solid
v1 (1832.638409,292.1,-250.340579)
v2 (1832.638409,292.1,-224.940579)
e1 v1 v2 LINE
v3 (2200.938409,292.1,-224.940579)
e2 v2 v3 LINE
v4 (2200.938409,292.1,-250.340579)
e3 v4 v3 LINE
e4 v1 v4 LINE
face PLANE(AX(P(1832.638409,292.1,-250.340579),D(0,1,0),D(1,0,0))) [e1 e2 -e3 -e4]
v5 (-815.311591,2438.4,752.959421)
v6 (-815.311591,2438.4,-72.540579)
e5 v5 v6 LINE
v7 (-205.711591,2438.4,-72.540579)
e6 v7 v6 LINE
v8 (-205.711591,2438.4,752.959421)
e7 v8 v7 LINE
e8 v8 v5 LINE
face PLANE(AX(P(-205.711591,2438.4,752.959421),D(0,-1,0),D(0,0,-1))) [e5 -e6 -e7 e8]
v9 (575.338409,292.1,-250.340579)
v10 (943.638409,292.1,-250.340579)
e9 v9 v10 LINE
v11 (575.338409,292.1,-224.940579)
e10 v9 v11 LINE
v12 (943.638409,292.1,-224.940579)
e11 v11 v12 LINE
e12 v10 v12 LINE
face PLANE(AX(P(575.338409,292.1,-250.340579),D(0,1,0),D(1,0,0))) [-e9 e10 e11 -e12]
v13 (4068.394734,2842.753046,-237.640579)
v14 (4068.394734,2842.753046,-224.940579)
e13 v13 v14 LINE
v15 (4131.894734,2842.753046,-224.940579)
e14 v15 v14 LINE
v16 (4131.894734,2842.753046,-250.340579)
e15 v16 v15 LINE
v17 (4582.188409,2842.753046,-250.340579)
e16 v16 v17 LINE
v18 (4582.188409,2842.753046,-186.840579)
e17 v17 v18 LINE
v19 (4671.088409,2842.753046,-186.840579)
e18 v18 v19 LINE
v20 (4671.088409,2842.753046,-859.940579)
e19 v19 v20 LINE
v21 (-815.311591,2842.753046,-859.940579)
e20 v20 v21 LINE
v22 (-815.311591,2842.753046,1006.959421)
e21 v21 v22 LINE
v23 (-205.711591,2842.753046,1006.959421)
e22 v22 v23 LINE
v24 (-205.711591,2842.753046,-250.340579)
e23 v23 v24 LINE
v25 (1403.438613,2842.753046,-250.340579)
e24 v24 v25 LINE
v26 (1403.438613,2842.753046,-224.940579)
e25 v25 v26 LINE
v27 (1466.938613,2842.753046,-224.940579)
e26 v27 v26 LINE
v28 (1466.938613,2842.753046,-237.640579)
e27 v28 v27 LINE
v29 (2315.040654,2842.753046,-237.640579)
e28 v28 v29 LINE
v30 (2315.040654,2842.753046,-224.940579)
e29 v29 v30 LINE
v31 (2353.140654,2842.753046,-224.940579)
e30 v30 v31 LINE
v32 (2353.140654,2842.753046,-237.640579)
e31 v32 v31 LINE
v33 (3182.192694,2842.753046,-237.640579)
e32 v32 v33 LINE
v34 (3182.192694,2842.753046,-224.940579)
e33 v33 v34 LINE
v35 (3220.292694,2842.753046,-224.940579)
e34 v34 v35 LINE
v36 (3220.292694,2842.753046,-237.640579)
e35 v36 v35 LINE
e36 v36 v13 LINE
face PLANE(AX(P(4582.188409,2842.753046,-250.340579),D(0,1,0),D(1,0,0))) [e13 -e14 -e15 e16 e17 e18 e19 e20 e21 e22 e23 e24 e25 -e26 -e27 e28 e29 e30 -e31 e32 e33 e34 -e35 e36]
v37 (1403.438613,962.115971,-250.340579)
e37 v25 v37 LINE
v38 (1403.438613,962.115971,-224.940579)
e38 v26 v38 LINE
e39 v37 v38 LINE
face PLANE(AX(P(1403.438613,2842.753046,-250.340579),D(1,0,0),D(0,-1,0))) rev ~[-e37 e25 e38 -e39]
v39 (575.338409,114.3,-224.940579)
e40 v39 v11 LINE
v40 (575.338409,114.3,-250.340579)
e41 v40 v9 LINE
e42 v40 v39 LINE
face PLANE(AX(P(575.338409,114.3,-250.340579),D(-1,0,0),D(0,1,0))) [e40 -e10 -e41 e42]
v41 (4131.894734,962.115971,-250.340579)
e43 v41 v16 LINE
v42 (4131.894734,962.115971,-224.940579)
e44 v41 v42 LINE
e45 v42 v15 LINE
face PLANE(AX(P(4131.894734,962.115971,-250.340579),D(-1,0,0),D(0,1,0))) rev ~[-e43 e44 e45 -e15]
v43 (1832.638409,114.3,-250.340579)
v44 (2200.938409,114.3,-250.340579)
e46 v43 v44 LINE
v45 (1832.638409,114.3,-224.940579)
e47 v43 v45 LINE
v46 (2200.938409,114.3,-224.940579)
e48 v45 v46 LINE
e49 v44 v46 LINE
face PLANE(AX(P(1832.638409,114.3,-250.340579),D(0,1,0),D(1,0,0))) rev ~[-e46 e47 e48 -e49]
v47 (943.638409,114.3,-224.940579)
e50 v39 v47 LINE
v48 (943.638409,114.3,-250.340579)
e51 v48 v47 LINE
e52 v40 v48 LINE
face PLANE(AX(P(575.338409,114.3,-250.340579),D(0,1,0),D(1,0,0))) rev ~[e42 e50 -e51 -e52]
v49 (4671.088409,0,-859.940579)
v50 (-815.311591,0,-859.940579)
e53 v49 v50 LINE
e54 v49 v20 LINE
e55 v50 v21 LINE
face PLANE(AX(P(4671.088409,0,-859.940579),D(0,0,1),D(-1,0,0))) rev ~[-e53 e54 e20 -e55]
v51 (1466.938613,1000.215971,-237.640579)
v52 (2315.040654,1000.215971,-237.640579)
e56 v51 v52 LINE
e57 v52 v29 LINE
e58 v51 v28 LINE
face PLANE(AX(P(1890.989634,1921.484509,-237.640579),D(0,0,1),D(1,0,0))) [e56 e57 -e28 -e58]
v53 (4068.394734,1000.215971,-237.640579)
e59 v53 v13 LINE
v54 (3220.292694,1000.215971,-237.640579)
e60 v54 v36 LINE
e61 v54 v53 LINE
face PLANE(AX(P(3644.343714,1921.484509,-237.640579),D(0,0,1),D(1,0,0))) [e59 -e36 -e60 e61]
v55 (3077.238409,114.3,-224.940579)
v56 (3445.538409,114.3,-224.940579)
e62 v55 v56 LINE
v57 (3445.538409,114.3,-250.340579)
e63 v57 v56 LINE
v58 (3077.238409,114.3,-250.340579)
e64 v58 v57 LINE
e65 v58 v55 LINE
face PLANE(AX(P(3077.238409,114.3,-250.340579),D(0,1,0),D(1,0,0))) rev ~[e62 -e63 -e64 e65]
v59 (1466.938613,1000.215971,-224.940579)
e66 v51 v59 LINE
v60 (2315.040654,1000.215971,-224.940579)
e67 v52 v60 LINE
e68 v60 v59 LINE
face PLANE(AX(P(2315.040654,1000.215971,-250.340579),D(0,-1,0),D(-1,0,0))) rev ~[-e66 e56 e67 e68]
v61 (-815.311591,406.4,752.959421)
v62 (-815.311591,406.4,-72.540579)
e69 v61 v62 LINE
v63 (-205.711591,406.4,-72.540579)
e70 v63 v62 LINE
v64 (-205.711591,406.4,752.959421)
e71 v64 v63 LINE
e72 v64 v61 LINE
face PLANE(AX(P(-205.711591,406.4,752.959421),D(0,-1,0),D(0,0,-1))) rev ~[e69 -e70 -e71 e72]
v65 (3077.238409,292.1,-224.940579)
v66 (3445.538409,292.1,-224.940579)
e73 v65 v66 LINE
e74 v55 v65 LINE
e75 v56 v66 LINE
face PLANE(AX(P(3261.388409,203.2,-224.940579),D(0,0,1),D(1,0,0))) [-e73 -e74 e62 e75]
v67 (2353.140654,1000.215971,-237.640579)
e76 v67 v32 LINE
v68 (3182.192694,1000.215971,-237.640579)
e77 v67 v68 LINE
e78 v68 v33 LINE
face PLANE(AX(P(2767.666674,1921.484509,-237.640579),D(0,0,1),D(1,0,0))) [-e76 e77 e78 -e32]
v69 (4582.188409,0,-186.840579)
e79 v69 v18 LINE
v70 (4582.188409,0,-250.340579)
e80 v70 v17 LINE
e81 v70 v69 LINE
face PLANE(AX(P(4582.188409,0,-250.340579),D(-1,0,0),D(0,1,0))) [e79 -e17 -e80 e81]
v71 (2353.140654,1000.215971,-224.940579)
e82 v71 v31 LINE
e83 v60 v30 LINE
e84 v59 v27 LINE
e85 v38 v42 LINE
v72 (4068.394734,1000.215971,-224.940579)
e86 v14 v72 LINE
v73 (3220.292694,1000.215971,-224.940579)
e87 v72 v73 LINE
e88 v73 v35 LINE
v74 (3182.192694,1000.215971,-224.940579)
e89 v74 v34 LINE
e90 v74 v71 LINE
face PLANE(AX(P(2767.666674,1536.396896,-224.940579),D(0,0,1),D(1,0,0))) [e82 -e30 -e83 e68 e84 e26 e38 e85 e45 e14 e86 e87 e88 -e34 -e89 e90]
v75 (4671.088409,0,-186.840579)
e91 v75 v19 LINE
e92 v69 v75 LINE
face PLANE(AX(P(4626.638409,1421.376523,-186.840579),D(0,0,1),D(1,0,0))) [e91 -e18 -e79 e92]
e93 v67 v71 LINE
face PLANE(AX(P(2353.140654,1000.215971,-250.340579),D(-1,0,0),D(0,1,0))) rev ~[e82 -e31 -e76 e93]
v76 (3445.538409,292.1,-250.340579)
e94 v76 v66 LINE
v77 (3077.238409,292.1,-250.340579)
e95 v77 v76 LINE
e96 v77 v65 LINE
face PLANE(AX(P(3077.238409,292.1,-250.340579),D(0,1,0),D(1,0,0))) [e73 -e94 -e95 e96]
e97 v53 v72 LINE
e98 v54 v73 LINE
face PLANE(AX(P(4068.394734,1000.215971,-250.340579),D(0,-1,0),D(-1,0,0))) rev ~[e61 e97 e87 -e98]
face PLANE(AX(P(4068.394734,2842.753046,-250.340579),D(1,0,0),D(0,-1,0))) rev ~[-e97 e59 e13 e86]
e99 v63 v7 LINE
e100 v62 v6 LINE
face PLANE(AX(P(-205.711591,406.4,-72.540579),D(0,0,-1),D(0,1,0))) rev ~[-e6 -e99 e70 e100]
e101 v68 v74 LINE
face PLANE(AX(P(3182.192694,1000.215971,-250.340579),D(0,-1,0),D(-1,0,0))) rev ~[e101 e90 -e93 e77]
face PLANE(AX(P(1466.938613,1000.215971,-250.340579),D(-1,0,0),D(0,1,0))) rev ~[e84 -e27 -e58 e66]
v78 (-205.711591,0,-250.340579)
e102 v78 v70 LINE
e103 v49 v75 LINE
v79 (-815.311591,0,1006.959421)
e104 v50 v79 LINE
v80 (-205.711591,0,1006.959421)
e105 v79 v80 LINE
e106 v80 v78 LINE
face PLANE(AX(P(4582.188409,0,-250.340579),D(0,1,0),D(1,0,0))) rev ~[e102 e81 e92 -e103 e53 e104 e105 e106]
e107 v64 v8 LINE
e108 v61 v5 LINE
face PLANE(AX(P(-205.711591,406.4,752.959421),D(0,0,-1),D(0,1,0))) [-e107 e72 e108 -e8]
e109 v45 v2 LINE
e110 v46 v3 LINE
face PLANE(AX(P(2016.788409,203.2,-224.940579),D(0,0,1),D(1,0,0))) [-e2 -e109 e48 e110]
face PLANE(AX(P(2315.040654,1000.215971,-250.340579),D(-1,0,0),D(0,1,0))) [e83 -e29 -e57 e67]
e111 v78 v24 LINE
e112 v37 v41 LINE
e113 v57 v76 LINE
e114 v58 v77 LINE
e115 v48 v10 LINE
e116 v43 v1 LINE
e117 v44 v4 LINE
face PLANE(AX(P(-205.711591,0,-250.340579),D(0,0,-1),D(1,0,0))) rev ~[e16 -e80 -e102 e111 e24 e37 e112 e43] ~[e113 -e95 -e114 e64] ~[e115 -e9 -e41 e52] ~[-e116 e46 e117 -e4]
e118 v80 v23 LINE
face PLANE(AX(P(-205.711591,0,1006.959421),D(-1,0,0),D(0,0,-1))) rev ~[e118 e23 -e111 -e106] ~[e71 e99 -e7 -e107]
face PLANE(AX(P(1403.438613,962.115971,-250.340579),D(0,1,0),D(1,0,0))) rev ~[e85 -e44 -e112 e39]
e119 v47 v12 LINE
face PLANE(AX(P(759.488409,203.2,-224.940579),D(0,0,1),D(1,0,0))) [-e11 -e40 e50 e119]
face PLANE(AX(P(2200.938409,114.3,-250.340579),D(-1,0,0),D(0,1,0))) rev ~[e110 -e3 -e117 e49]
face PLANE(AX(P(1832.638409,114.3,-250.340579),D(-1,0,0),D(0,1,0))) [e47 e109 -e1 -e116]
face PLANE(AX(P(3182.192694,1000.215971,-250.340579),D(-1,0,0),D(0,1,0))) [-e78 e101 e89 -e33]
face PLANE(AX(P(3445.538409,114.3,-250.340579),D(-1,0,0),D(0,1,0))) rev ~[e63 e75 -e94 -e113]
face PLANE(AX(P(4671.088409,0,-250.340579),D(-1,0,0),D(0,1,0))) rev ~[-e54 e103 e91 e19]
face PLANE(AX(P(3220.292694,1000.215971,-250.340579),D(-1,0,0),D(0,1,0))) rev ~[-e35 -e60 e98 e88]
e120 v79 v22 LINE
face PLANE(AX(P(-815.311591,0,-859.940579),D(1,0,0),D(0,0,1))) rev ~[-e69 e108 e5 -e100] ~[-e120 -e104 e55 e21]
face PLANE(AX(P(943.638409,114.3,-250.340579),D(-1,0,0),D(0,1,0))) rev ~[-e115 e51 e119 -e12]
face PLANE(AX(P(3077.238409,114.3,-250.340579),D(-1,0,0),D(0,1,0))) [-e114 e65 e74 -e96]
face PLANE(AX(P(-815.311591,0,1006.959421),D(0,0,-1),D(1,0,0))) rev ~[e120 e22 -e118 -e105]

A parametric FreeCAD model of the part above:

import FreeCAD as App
import Part
import Sketcher
Q = App.Units.Quantity


def add_polygon(sketch, points):
    """Adds a closed chain of lines whose ends are joined by coincident constraints."""
    first, n = sketch.GeometryCount, len(points)
    for a, b in zip(points, points[1:] + points[:1]):
        sketch.addGeometry(Part.LineSegment(App.Vector(*a, 0), App.Vector(*b, 0)), False)
    for i in range(n):
        sketch.addConstraint(Sketcher.Constraint("Coincident", first + i, 2, first + (i + 1) % n, 1))

doc = App.newDocument("Part")
body = doc.addObject("PartDesign::Body", "Body")

sketch1 = body.newObject("Sketcher::SketchObject", "Sketch")
sketch1.AttachmentSupport = (doc.getObject("XZ_Plane"), [""])
sketch1.MapMode = "FlatFace"
add_polygon(sketch1, [(-206, -250), (4671, -250), (4671, -860), (-815, -860), (-815, 1007), (-206, 1007)])
sketch1.addConstraint([
    Sketcher.Constraint("Horizontal", 0),
    Sketcher.Constraint("Vertical", 1),
    Sketcher.Constraint("Horizontal", 2),
    Sketcher.Constraint("Vertical", 3),
    Sketcher.Constraint("Horizontal", 4),
    Sketcher.Constraint("Vertical", 5),
    Sketcher.Constraint("Equal", 4, 1),
    Sketcher.Constraint("DistanceX", 0, 1, 0, 2, Q("192 in")),
    Sketcher.Constraint("DistanceX", 2, 2, 2, 1, Q("216 in")),
    Sketcher.Constraint("DistanceY", 3, 1, 3, 2, Q("73.5 in")),
    Sketcher.Constraint("DistanceX", -1, 1, 0, 2, 4671.088409),
    Sketcher.Constraint("DistanceY", 0, 2, -1, 1, 250.340579),
])
pad1 = body.newObject("PartDesign::Pad", "Pad")
pad1.Profile = sketch1
pad1.Length = 2842.753046
pad1.Reversed = True

sketch2 = body.newObject("Sketcher::SketchObject", "Sketch001")
sketch2.AttachmentSupport = (doc.getObject("YZ_Plane"), [""])
sketch2.MapMode = "FlatFace"
sketch2.AttachmentOffset = App.Placement(App.Vector(0, 0, -205.711591), App.Rotation())
add_polygon(sketch2, [(2438, 753), (406, 753), (406, -73), (2438, -73)])
sketch2.addConstraint([
    Sketcher.Constraint("Horizontal", 0),
    Sketcher.Constraint("Vertical", 1),
    Sketcher.Constraint("Horizontal", 2),
    Sketcher.Constraint("Vertical", 3),
    Sketcher.Constraint("DistanceX", 0, 2, 0, 1, Q("80 in")),
    Sketcher.Constraint("DistanceY", 1, 2, 1, 1, Q("32.5 in")),
    Sketcher.Constraint("DistanceX", -1, 1, 0, 2, Q("16 in")),
    Sketcher.Constraint("DistanceY", -1, 1, 0, 2, 752.959421),
])
pocket1 = body.newObject("PartDesign::Pocket", "Pocket")
pocket1.Profile = sketch2
pocket1.Length = Q("24 in")

sketch3 = body.newObject("Sketcher::SketchObject", "Sketch002")
sketch3.AttachmentSupport = (doc.getObject("XY_Plane"), [""])
sketch3.MapMode = "FlatFace"
sketch3.AttachmentOffset = App.Placement(App.Vector(0, 0, -250.340579), App.Rotation())
add_polygon(sketch3, [(1403, 2843), (1403, 962), (4132, 962), (4132, 2843), (4068, 2843), (4068, 1000), (3220, 1000), (3220, 2843), (3182, 2843), (3182, 1000), (2353, 1000), (2353, 2843), (2315, 2843), (2315, 1000), (1467, 1000), (1467, 2843)])
sketch3.addConstraint([
    Sketcher.Constraint("Vertical", 0),
    Sketcher.Constraint("Horizontal", 1),
    Sketcher.Constraint("Vertical", 2),
    Sketcher.Constraint("Horizontal", 3),
    Sketcher.Constraint("Vertical", 4),
    Sketcher.Constraint("Horizontal", 5),
    Sketcher.Constraint("Vertical", 6),
    Sketcher.Constraint("Horizontal", 7),
    Sketcher.Constraint("Vertical", 8),
    Sketcher.Constraint("Horizontal", 9),
    Sketcher.Constraint("Vertical", 10),
    Sketcher.Constraint("Horizontal", 11),
    Sketcher.Constraint("Vertical", 12),
    Sketcher.Constraint("Horizontal", 13),
    Sketcher.Constraint("Vertical", 14),
    Sketcher.Constraint("Horizontal", 15),
    Sketcher.Constraint("Horizontal", 3, 2, 6, 2),
    Sketcher.Constraint("Horizontal", 5, 2, 8, 2),
    Sketcher.Constraint("Horizontal", 7, 2, 10, 2),
    Sketcher.Constraint("Horizontal", 9, 2, 12, 2),
    Sketcher.Constraint("Horizontal", 11, 2, 14, 2),
    Sketcher.Constraint("Equal", 7, 11),
    Sketcher.Constraint("Equal", 5, 13),
    Sketcher.Constraint("Equal", 3, 15),
    Sketcher.Constraint("DistanceX", 3, 2, 3, 1, Q("2.5 in")),
    Sketcher.Constraint("DistanceX", 7, 2, 7, 1, Q("1.5 in")),
    Sketcher.Constraint("DistanceY", 1, 2, 4, 2, Q("1.5 in")),
    Sketcher.Constraint("DistanceX", 1, 1, 1, 2, 2728.456121),
    Sketcher.Constraint("DistanceX", 5, 2, 5, 1, 848.10204),
    Sketcher.Constraint("DistanceY", 0, 2, 0, 1, 1880.637075),
    Sketcher.Constraint("DistanceY", -1, 1, 0, 2, 962.115971),
    Sketcher.Constraint("DistanceX", -1, 1, 0, 2, 1403.438613),
])
pad2 = body.newObject("PartDesign::Pad", "Pad001")
pad2.Profile = sketch3
pad2.Length = Q("1 in")

sketch4 = body.newObject("Sketcher::SketchObject", "Sketch003")
sketch4.AttachmentSupport = (doc.getObject("XY_Plane"), [""])
sketch4.MapMode = "FlatFace"
sketch4.AttachmentOffset = App.Placement(App.Vector(0, 0, -250.340579), App.Rotation())
add_polygon(sketch4, [(1467, 2843), (1467, 1000), (2315, 1000), (2315, 2843)])
add_polygon(sketch4, [(2353, 2843), (2353, 1000), (3182, 1000), (3182, 2843)])
add_polygon(sketch4, [(3220, 2843), (3220, 1000), (4068, 1000), (4068, 2843)])
sketch4.addConstraint([
    Sketcher.Constraint("Vertical", 0),
    Sketcher.Constraint("Horizontal", 1),
    Sketcher.Constraint("Vertical", 2),
    Sketcher.Constraint("Horizontal", 3),
    Sketcher.Constraint("Vertical", 4),
    Sketcher.Constraint("Horizontal", 5),
    Sketcher.Constraint("Vertical", 6),
    Sketcher.Constraint("Horizontal", 7),
    Sketcher.Constraint("Vertical", 8),
    Sketcher.Constraint("Horizontal", 9),
    Sketcher.Constraint("Vertical", 10),
    Sketcher.Constraint("Horizontal", 11),
    Sketcher.Constraint("Horizontal", 1, 2, 4, 2),
    Sketcher.Constraint("Horizontal", 3, 2, 6, 2),
    Sketcher.Constraint("Horizontal", 5, 2, 8, 2),
    Sketcher.Constraint("Horizontal", 7, 2, 10, 2),
    Sketcher.Constraint("Equal", 3, 9),
    Sketcher.Constraint("DistanceX", 1, 2, 4, 2, Q("1.5 in")),
    Sketcher.Constraint("DistanceX", 5, 2, 8, 2, Q("1.5 in")),
    Sketcher.Constraint("DistanceX", 1, 1, 1, 2, 848.10204),
    Sketcher.Constraint("DistanceX", 5, 1, 5, 2, 829.05204),
    Sketcher.Constraint("DistanceY", 0, 2, 0, 1, 1842.537075),
    Sketcher.Constraint("DistanceY", -1, 1, 0, 2, 1000.215971),
    Sketcher.Constraint("DistanceX", -1, 1, 0, 2, 1466.938613),
])
pad3 = body.newObject("PartDesign::Pad", "Pad002")
pad3.Profile = sketch4
pad3.Length = Q("0.5 in")

sketch5 = body.newObject("Sketcher::SketchObject", "Sketch004")
sketch5.AttachmentSupport = (doc.getObject("XY_Plane"), [""])
sketch5.MapMode = "FlatFace"
sketch5.AttachmentOffset = App.Placement(App.Vector(0, 0, -250.340579), App.Rotation())
add_polygon(sketch5, [(4582, 2843), (4582, 0), (4671, 0), (4671, 2843)])
sketch5.addConstraint([
    Sketcher.Constraint("Vertical", 0),
    Sketcher.Constraint("Horizontal", 1),
    Sketcher.Constraint("Vertical", 2),
    Sketcher.Constraint("Horizontal", 3),
    Sketcher.Constraint("PointOnObject", 0, 2, -1),
    Sketcher.Constraint("DistanceX", 1, 1, 1, 2, Q("3.5 in")),
    Sketcher.Constraint("DistanceY", 0, 2, 0, 1, 2842.753046),
    Sketcher.Constraint("DistanceX", -1, 1, 0, 2, 4582.188409),
])
pad4 = body.newObject("PartDesign::Pad", "Pad003")
pad4.Profile = sketch5
pad4.Length = Q("2.5 in")

sketch6 = body.newObject("Sketcher::SketchObject", "Sketch005")
sketch6.AttachmentSupport = (doc.getObject("XY_Plane"), [""])
sketch6.MapMode = "FlatFace"
sketch6.AttachmentOffset = App.Placement(App.Vector(0, 0, -250.340579), App.Rotation())
add_polygon(sketch6, [(3077, 292), (3077, 114), (3446, 114), (3446, 292)])
add_polygon(sketch6, [(1833, 292), (1833, 114), (2201, 114), (2201, 292)])
add_polygon(sketch6, [(575, 292), (575, 114), (944, 114), (944, 292)])
sketch6.addConstraint([
    Sketcher.Constraint("Vertical", 0),
    Sketcher.Constraint("Horizontal", 1),
    Sketcher.Constraint("Vertical", 2),
    Sketcher.Constraint("Horizontal", 3),
    Sketcher.Constraint("Vertical", 4),
    Sketcher.Constraint("Horizontal", 5),
    Sketcher.Constraint("Vertical", 6),
    Sketcher.Constraint("Horizontal", 7),
    Sketcher.Constraint("Vertical", 8),
    Sketcher.Constraint("Horizontal", 9),
    Sketcher.Constraint("Vertical", 10),
    Sketcher.Constraint("Horizontal", 11),
    Sketcher.Constraint("Horizontal", 1, 2, 4, 2),
    Sketcher.Constraint("Horizontal", 3, 2, 6, 2),
    Sketcher.Constraint("Horizontal", 5, 2, 8, 2),
    Sketcher.Constraint("Horizontal", 7, 2, 10, 2),
    Sketcher.Constraint("Equal", 3, 5),
    Sketcher.Constraint("Equal", 7, 9),
    Sketcher.Constraint("DistanceY", 0, 2, 0, 1, Q("7 in")),
    Sketcher.Constraint("DistanceX", 1, 1, 1, 2, Q("14.5 in")),
    Sketcher.Constraint("DistanceX", 4, 2, 0, 2, Q("49 in")),
    Sketcher.Constraint("DistanceX", 8, 2, 5, 2, Q("64 in")),
    Sketcher.Constraint("DistanceY", -1, 1, 0, 2, Q("4.5 in")),
    Sketcher.Constraint("DistanceX", -1, 1, 0, 2, 3077.238409),
])
pad5 = body.newObject("PartDesign::Pad", "Pad004")
pad5.Profile = sketch6
pad5.Length = Q("1 in")

doc.recompute()
